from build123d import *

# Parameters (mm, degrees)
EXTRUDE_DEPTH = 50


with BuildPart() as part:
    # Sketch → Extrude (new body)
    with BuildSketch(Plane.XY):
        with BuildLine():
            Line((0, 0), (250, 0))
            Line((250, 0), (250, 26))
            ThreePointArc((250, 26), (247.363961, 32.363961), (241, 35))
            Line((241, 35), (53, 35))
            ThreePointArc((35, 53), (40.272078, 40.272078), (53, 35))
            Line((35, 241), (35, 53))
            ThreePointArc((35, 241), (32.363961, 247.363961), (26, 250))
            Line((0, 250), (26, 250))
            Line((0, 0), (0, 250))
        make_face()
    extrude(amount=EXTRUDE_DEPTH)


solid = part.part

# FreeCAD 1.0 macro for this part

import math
import FreeCAD as App
import Part
import Sketcher
Q = App.Units.Quantity

doc = App.newDocument("Part")
body = doc.addObject("PartDesign::Body", "Body")

# Sketch on XY plane
sketch1 = body.newObject("Sketcher::SketchObject", "Sketch")
sketch1.AttachmentSupport = (doc.getObject("XY_Plane"), [""])
sketch1.MapMode = "FlatFace"
sketch1.addGeometry([
    Part.LineSegment(App.Vector(0, 0, 0), App.Vector(250, 0, 0)),  # 0
    Part.LineSegment(App.Vector(250, 0, 0), App.Vector(250, 26, 0)),  # 1
    Part.ArcOfCircle(Part.Circle(App.Vector(241, 26, 0), App.Vector(0, 0, 1), 9), math.radians(0.000001), math.radians(89.999999)),  # 2
    Part.LineSegment(App.Vector(241, 35, 0), App.Vector(53, 35, 0)),  # 3
    Part.ArcOfCircle(Part.Circle(App.Vector(53, 53, 0), App.Vector(0, 0, 1), 18), math.radians(-179.999999), math.radians(-90.000001)),  # 4
    Part.LineSegment(App.Vector(35, 53, 0), App.Vector(35, 241, 0)),  # 5
    Part.ArcOfCircle(Part.Circle(App.Vector(26, 241, 0), App.Vector(0, 0, 1), 9), math.radians(0.000001), math.radians(89.999999)),  # 6
    Part.LineSegment(App.Vector(26, 250, 0), App.Vector(0, 250, 0)),  # 7
    Part.LineSegment(App.Vector(0, 250, 0), App.Vector(0, 0, 0)),  # 8
], False)
sketch1.addConstraint([
    Sketcher.Constraint("Coincident", 0, 2, 1, 1),
    Sketcher.Constraint("Tangent", 1, 2, 2, 1),
    Sketcher.Constraint("Tangent", 2, 2, 3, 1),
    Sketcher.Constraint("Tangent", 3, 2, 4, 2),
    Sketcher.Constraint("Tangent", 4, 1, 5, 1),
    Sketcher.Constraint("Tangent", 5, 2, 6, 1),
    Sketcher.Constraint("Tangent", 6, 2, 7, 1),
    Sketcher.Constraint("Coincident", 7, 2, 8, 1),
    Sketcher.Constraint("Coincident", 8, 2, 0, 1),
    Sketcher.Constraint("Horizontal", 0),
    Sketcher.Constraint("Vertical", 1),
    Sketcher.Constraint("Horizontal", 3),
    Sketcher.Constraint("Vertical", 5),
    Sketcher.Constraint("Horizontal", 7),
    Sketcher.Constraint("Vertical", 8),
    Sketcher.Constraint("Coincident", 8, 2, -1, 1),
    Sketcher.Constraint("Equal", 2, 6),
    Sketcher.Constraint("Equal", 7, 1),
    Sketcher.Constraint("Equal", 3, 5),
    Sketcher.Constraint("Radius", 2, Q("9 mm")),
    Sketcher.Constraint("Radius", 4, Q("18 mm")),
    Sketcher.Constraint("DistanceX", 0, 1, 0, 2, Q("250 mm")),
    Sketcher.Constraint("DistanceX", 3, 2, 3, 1, Q("188 mm")),
])
pad1 = body.newObject("PartDesign::Pad", "Pad")
pad1.Profile = sketch1
pad1.Length = 50

doc.recompute()
